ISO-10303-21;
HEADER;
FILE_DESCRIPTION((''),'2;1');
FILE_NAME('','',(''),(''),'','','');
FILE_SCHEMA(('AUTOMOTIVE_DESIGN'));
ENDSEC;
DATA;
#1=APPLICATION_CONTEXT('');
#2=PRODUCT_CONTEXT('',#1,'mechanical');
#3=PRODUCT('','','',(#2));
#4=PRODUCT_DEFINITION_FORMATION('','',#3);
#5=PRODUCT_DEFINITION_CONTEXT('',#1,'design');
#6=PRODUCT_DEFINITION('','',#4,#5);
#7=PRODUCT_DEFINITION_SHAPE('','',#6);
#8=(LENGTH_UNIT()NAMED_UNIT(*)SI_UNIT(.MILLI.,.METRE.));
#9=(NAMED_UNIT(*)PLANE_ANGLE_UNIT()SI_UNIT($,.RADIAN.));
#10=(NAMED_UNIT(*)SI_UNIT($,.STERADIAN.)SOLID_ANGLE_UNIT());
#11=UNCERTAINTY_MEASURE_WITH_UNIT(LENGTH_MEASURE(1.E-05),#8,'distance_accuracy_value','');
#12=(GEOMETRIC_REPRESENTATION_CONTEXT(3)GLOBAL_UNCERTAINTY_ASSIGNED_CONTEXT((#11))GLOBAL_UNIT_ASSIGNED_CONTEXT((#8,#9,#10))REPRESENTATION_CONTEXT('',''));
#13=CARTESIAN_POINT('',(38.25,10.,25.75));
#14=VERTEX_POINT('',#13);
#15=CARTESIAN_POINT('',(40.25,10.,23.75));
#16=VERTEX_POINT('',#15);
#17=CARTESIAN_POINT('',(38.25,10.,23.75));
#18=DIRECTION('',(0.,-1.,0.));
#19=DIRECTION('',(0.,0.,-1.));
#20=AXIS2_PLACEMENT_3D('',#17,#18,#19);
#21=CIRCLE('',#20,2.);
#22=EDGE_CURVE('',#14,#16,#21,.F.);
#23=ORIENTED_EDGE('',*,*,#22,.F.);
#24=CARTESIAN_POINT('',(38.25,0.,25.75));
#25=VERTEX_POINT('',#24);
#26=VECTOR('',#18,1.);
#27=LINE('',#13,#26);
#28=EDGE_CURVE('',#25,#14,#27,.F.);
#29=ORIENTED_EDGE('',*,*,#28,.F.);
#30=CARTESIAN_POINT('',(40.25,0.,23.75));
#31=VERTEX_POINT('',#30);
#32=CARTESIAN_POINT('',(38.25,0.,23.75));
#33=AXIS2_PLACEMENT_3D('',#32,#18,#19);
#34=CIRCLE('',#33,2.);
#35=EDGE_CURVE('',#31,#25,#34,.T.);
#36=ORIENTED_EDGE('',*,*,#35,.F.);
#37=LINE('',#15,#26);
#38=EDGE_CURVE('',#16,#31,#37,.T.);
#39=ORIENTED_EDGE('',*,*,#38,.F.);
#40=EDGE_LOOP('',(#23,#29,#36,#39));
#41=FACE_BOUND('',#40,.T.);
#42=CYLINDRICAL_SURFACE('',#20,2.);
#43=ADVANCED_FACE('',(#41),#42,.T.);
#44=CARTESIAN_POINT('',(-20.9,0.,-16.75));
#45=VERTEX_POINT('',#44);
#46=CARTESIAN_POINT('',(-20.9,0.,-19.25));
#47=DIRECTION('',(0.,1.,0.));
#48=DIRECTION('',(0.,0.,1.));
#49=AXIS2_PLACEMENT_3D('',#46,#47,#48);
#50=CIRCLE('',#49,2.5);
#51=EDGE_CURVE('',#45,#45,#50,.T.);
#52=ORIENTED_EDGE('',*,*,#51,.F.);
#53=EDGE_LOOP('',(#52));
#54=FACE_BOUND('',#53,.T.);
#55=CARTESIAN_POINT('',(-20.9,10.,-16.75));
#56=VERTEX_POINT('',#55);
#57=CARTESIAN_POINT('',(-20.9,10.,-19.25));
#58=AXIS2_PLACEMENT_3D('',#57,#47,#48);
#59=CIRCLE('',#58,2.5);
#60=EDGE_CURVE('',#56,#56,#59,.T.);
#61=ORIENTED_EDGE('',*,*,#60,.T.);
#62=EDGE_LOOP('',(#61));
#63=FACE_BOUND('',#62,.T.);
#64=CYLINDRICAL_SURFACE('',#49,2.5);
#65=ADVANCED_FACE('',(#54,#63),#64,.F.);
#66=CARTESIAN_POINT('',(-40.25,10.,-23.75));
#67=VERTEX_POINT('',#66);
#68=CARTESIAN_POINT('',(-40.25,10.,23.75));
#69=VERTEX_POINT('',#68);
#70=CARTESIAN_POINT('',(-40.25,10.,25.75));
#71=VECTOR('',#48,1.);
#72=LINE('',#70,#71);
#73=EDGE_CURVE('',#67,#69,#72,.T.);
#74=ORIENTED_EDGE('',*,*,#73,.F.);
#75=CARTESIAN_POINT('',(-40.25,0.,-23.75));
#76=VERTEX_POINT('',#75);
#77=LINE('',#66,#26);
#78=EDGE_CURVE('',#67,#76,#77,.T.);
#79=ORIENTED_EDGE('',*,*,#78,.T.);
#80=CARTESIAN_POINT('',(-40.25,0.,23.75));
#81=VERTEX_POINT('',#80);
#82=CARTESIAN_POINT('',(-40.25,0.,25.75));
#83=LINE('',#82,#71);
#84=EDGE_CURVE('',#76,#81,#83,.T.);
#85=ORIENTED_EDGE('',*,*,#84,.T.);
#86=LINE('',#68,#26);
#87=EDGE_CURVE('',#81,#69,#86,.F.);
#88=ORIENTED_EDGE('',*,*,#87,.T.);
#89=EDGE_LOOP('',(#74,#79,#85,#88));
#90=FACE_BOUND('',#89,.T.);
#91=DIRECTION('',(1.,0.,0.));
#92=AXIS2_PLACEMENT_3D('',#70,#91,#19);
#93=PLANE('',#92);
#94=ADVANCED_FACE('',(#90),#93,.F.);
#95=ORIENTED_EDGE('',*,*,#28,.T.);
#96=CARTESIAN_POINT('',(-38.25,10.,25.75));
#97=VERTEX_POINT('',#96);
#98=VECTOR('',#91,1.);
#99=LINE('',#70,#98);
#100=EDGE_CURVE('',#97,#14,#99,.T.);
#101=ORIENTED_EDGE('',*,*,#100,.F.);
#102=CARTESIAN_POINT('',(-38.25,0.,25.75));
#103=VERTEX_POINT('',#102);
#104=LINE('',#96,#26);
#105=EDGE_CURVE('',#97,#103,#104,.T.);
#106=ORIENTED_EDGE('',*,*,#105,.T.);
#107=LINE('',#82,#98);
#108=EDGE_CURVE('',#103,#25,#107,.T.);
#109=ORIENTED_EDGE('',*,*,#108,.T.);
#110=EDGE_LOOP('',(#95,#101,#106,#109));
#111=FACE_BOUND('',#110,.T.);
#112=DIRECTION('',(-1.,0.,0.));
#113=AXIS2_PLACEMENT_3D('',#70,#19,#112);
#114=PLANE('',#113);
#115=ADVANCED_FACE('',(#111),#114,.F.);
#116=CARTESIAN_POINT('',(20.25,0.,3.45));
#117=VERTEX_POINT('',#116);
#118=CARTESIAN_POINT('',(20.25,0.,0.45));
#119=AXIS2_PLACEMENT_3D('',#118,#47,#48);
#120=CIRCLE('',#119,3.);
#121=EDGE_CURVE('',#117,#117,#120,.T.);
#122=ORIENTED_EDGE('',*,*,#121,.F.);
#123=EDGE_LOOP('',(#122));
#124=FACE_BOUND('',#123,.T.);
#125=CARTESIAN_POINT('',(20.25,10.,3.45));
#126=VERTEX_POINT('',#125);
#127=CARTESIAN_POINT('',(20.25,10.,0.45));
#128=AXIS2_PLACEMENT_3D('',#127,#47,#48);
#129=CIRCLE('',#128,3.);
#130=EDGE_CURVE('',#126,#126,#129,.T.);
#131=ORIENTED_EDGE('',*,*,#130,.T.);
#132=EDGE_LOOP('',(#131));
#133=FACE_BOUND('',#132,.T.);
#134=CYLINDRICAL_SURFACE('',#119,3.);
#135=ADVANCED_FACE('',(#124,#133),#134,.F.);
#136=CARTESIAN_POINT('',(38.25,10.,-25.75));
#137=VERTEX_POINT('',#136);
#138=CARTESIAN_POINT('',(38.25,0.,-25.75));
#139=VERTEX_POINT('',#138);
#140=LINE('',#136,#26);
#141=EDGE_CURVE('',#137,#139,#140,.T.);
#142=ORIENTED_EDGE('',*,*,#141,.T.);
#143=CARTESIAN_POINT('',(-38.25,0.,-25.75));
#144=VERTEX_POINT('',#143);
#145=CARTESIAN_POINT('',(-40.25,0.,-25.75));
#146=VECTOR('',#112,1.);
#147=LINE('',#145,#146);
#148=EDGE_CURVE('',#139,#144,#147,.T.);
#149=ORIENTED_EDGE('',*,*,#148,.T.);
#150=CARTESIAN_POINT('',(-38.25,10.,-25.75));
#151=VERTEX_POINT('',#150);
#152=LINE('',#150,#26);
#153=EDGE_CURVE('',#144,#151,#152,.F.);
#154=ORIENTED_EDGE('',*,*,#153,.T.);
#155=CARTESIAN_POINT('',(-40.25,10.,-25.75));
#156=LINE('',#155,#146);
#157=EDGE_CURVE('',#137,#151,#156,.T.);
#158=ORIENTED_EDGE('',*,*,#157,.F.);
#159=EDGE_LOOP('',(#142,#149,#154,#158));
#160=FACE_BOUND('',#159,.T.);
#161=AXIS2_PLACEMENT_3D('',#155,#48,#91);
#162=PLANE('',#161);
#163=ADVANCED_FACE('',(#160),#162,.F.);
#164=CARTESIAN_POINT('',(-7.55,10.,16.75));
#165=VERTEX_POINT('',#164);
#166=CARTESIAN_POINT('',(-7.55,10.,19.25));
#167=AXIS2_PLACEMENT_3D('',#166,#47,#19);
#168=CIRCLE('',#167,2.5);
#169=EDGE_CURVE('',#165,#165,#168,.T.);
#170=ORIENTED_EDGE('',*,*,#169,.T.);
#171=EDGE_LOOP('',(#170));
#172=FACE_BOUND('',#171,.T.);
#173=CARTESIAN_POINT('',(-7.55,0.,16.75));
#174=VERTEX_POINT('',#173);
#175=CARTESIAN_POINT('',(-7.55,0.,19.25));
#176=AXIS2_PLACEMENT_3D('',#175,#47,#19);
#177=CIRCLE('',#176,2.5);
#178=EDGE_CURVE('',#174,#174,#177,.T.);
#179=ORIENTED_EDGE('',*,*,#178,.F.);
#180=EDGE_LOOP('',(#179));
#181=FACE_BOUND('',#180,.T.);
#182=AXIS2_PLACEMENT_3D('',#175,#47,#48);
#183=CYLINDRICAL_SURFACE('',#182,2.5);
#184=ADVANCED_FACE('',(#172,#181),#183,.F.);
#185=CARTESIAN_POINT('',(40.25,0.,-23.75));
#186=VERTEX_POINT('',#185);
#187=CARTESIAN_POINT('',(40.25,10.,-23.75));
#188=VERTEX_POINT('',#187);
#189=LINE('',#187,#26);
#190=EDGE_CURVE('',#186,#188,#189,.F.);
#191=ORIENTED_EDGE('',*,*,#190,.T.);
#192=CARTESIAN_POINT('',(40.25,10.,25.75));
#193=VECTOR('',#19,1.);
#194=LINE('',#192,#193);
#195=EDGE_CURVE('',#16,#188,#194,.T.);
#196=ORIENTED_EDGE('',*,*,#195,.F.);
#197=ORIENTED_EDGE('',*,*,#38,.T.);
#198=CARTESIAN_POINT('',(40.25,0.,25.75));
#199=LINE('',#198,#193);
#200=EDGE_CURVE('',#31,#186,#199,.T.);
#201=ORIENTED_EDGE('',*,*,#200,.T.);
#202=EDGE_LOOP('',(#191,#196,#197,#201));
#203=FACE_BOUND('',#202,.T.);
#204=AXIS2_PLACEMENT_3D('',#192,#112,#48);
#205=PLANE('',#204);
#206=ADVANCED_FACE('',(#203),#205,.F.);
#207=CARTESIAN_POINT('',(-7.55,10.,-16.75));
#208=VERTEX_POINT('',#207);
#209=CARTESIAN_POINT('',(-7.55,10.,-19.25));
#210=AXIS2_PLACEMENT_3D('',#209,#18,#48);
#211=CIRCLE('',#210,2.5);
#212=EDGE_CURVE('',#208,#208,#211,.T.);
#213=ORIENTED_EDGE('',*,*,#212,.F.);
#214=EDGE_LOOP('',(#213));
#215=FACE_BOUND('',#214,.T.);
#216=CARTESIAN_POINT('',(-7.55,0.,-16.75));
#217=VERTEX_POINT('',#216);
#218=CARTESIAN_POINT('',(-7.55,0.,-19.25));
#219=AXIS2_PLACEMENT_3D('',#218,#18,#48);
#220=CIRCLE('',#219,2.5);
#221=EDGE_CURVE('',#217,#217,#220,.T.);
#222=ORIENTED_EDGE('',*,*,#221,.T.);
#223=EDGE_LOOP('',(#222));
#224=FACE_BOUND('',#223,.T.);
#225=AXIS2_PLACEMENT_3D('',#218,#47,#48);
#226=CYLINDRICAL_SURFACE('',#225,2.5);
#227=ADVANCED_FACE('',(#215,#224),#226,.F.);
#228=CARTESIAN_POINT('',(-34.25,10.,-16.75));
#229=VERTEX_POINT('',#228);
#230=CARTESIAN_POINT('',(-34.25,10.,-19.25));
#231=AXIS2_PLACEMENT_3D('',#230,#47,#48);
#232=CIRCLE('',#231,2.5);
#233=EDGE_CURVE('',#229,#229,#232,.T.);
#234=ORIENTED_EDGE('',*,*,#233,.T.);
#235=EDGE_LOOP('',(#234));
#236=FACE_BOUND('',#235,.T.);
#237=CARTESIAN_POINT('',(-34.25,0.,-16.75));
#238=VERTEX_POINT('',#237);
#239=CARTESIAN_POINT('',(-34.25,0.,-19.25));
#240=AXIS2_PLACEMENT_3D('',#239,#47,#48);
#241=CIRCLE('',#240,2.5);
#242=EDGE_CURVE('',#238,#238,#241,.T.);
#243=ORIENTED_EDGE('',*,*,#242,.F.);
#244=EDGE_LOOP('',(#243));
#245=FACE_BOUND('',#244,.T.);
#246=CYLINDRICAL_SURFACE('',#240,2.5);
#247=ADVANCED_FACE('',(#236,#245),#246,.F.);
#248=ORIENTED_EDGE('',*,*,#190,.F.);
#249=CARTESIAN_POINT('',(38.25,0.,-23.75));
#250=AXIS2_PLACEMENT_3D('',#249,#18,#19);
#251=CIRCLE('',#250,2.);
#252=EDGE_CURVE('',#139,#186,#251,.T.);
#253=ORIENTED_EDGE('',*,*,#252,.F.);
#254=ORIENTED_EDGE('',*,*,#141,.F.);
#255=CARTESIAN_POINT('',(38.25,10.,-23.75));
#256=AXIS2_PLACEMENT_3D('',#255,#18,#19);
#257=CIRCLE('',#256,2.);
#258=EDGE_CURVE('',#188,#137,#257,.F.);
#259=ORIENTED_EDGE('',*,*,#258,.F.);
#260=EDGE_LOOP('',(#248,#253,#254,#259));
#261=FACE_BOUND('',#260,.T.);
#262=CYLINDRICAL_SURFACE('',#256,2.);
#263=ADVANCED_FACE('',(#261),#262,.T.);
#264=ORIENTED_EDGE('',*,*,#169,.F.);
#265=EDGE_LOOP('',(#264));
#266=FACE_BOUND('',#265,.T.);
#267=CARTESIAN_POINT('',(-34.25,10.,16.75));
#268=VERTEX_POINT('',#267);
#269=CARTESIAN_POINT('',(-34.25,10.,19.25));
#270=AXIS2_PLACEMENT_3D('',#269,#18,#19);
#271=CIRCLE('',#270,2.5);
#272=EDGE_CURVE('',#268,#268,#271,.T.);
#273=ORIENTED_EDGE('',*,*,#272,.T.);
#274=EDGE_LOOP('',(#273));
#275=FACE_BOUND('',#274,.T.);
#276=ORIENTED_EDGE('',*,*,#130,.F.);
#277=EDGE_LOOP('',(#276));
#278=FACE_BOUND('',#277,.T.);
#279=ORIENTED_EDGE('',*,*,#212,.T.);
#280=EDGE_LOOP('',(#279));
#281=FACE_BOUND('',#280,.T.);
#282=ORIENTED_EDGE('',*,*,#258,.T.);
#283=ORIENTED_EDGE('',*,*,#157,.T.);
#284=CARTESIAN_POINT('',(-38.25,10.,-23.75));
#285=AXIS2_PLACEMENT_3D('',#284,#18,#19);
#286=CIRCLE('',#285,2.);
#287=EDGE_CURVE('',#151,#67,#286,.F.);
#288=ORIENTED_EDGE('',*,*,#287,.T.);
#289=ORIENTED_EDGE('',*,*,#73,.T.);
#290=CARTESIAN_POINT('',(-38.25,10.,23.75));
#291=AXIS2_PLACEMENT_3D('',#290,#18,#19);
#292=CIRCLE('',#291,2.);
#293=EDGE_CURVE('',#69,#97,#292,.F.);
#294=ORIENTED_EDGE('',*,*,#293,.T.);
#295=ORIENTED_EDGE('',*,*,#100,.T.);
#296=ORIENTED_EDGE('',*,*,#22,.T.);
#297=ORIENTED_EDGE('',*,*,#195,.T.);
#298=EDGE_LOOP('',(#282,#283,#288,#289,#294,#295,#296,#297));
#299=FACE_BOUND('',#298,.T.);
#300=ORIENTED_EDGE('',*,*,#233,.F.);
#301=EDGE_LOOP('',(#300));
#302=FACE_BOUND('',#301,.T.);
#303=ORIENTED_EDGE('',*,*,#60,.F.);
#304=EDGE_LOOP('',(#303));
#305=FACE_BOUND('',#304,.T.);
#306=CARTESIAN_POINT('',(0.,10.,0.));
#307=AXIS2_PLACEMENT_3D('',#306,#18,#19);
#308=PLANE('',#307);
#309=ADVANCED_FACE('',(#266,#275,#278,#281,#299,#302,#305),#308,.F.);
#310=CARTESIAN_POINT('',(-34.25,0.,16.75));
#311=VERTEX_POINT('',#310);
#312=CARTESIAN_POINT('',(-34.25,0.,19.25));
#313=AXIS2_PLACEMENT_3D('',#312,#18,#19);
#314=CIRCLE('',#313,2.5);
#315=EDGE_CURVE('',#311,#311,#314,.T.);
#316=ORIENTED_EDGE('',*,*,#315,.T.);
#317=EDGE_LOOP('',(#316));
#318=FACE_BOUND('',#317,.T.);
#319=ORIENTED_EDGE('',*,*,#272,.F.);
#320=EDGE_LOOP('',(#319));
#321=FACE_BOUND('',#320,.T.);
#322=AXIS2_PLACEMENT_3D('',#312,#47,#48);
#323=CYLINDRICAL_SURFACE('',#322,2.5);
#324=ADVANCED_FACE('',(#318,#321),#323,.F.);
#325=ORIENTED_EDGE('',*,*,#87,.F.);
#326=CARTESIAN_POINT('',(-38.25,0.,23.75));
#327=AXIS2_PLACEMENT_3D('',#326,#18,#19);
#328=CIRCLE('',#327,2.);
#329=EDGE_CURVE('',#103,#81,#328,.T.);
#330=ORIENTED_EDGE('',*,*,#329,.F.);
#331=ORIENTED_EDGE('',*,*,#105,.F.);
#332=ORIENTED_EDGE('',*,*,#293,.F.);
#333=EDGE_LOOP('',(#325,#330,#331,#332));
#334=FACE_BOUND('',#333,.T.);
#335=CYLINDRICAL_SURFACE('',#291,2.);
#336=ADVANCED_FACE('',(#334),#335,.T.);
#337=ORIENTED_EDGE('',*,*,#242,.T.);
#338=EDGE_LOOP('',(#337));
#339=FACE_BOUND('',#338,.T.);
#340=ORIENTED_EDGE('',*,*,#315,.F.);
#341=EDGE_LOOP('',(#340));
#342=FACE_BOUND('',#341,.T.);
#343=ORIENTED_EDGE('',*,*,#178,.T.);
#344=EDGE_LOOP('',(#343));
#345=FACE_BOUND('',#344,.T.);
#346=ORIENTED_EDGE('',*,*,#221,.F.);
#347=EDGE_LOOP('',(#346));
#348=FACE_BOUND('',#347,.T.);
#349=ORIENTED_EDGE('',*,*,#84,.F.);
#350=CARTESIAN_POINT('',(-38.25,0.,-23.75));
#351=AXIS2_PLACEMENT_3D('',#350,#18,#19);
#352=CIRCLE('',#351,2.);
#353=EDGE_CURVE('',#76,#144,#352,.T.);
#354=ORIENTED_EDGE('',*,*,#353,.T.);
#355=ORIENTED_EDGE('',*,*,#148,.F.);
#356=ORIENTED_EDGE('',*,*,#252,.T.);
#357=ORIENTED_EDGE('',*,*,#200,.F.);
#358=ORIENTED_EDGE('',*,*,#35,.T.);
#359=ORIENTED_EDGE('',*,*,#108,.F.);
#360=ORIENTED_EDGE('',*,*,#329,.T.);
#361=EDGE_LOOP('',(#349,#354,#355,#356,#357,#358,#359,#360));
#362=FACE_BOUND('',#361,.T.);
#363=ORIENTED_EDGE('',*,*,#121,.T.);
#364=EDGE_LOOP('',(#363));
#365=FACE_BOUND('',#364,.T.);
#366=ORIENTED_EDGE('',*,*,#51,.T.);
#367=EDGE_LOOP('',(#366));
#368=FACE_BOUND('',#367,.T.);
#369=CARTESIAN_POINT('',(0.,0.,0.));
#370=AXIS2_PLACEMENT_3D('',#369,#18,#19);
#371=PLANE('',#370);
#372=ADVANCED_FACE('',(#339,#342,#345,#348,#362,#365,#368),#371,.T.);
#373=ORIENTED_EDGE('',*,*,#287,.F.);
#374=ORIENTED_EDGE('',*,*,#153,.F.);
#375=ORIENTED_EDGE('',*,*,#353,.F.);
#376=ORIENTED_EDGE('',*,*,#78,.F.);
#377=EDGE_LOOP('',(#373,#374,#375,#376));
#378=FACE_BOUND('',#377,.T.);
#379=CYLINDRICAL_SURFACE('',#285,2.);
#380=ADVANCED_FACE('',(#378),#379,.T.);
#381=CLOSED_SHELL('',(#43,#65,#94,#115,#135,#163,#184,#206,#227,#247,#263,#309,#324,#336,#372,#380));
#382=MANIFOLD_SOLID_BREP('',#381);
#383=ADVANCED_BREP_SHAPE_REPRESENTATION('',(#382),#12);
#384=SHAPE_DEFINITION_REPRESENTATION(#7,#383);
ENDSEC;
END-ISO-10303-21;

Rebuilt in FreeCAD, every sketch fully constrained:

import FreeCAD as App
import Part
import Sketcher

V = App.Vector


def edges_at(feature, points):
    """Names of the edges that pass closest to the given points."""
    edges = feature.Shape.Edges
    near = lambda p: min(range(len(edges)), key=lambda i: edges[i].distToShape(Part.Vertex(*p))[0])
    return sorted({f"Edge{near(p) + 1}" for p in points})

doc = App.newDocument("Part")
params = doc.addObject("Spreadsheet::Sheet", "Params")
for row, (alias, value) in enumerate([
    ("sketch1_width", "80.5 mm"),
    ("sketch1_height", "51.5 mm"),
    ("pad1_length", "10 mm"),
    ("sketch2_diameter", "5 mm"),
    ("sketch3_diameter", "5 mm"),
    ("sketch4_diameter", "5 mm"),
    ("sketch5_diameter", "6 mm"),
    ("fillet_radius", "2 mm"),
], start=1):
    params.set(f"A{row}", alias)
    params.set(f"B{row}", "=" + value)
    params.setAlias(f"B{row}", alias)

body = doc.addObject("PartDesign::Body", "Body")

# Sketch on XZ plane
sketch1 = body.newObject("Sketcher::SketchObject", "Sketch")
sketch1.AttachmentSupport = (doc.getObject("XZ_Plane"), [""])
sketch1.MapMode = "FlatFace"
sketch1.addGeometry([
    Part.LineSegment(V(-40, -26, 0), V(-40, 26, 0)),
    Part.LineSegment(V(-40, 26, 0), V(40, 26, 0)),
    Part.LineSegment(V(40, 26, 0), V(40, -26, 0)),
    Part.LineSegment(V(40, -26, 0), V(-40, -26, 0)),
], False)
sketch1.addConstraint([
    Sketcher.Constraint("Coincident", 0, 2, 1, 1),
    Sketcher.Constraint("Coincident", 1, 2, 2, 1),
    Sketcher.Constraint("Coincident", 2, 2, 3, 1),
    Sketcher.Constraint("Coincident", 3, 2, 0, 1),
    Sketcher.Constraint("Vertical", 0),
    Sketcher.Constraint("Horizontal", 1),
    Sketcher.Constraint("Vertical", 2),
    Sketcher.Constraint("Horizontal", 3),
    Sketcher.Constraint("Symmetric", 0, 2, 2, 2, -1, 1),
    Sketcher.Constraint("DistanceX", 1, 1, 1, 2, 80.5),
    Sketcher.Constraint("DistanceY", 0, 1, 0, 2, 51.5),
])
sketch1.setExpression("Constraints[9]", "Params.sketch1_width")
sketch1.setExpression("Constraints[10]", "Params.sketch1_height")
pad1 = body.newObject("PartDesign::Pad", "Pad")
pad1.Profile = sketch1
pad1.setExpression("Length", "Params.pad1_length")
pad1.Reversed = True

# Sketch on XZ plane
sketch2 = body.newObject("Sketcher::SketchObject", "Sketch001")
sketch2.AttachmentSupport = (doc.getObject("XZ_Plane"), [""])
sketch2.MapMode = "FlatFace"
sketch2.AttachmentOffset = App.Placement(V(0, 0, -10), App.Rotation())
sketch2.addGeometry(Part.Circle(V(-34.2, -19.2, 0), V(0, 0, 1), 2.5), False)
sketch2.addConstraint([
    Sketcher.Constraint("Diameter", 0, 5.0),
    Sketcher.Constraint("DistanceX", 0, 3, -1, 1, 34.25),
    Sketcher.Constraint("DistanceY", 0, 3, -1, 1, 19.25),
])
sketch2.setExpression("Constraints[0]", "Params.sketch2_diameter")
pocket1 = body.newObject("PartDesign::Pocket", "Pocket")
pocket1.Profile = sketch2
pocket1.Type = "ThroughAll"
pocket1.Reversed = True
doc.recompute()

datumplane = body.newObject("PartDesign::Plane", "DatumPlane")
datumplane.AttachmentSupport = (doc.getObject("YZ_Plane"), [""])
datumplane.MapMode = "FlatFace"
datumplane.AttachmentOffset = App.Placement(V(0, 0, -20.9), App.Rotation())
mirrored = body.newObject("PartDesign::Mirrored", "Mirrored")
mirrored.Originals = [pocket1]
mirrored.MirrorPlane = (datumplane, [""])
body.Tip = mirrored
doc.recompute()

mirrored2 = body.newObject("PartDesign::Mirrored", "Mirrored001")
mirrored2.Originals = [pocket1]
mirrored2.MirrorPlane = (doc.getObject("XY_Plane"), [""])
body.Tip = mirrored2

# Sketch on XZ plane
sketch3 = body.newObject("Sketcher::SketchObject", "Sketch002")
sketch3.AttachmentSupport = (doc.getObject("XZ_Plane"), [""])
sketch3.MapMode = "FlatFace"
sketch3.AttachmentOffset = App.Placement(V(0, 0, -10), App.Rotation())
sketch3.addGeometry(Part.Circle(V(-7.5, 19.2, 0), V(0, 0, 1), 2.5), False)
sketch3.addConstraint([
    Sketcher.Constraint("Diameter", 0, 5.0),
    Sketcher.Constraint("DistanceX", 0, 3, -1, 1, 7.55),
    Sketcher.Constraint("DistanceY", -1, 1, 0, 3, 19.25),
])
sketch3.setExpression("Constraints[0]", "Params.sketch3_diameter")
pocket2 = body.newObject("PartDesign::Pocket", "Pocket001")
pocket2.Profile = sketch3
pocket2.Type = "ThroughAll"
pocket2.Reversed = True

# Sketch on XZ plane
sketch4 = body.newObject("Sketcher::SketchObject", "Sketch003")
sketch4.AttachmentSupport = (doc.getObject("XZ_Plane"), [""])
sketch4.MapMode = "FlatFace"
sketch4.AttachmentOffset = App.Placement(V(0, 0, -10), App.Rotation())
sketch4.addGeometry(Part.Circle(V(-20.9, -19.2, 0), V(0, 0, 1), 2.5), False)
sketch4.addConstraint([
    Sketcher.Constraint("Diameter", 0, 5.0),
    Sketcher.Constraint("DistanceX", 0, 3, -1, 1, 20.9),
    Sketcher.Constraint("DistanceY", 0, 3, -1, 1, 19.25),
])
sketch4.setExpression("Constraints[0]", "Params.sketch4_diameter")
pocket3 = body.newObject("PartDesign::Pocket", "Pocket002")
pocket3.Profile = sketch4
pocket3.Type = "ThroughAll"
pocket3.Reversed = True

# Sketch on XZ plane
sketch5 = body.newObject("Sketcher::SketchObject", "Sketch004")
sketch5.AttachmentSupport = (doc.getObject("XZ_Plane"), [""])
sketch5.MapMode = "FlatFace"
sketch5.AttachmentOffset = App.Placement(V(0, 0, -10), App.Rotation())
sketch5.addGeometry(Part.Circle(V(20.2, 0.5, 0), V(0, 0, 1), 3), False)
sketch5.addConstraint([
    Sketcher.Constraint("Diameter", 0, 6.0),
    Sketcher.Constraint("DistanceX", -1, 1, 0, 3, 20.25),
    Sketcher.Constraint("DistanceY", -1, 1, 0, 3, 0.45),
])
sketch5.setExpression("Constraints[0]", "Params.sketch5_diameter")
pocket4 = body.newObject("PartDesign::Pocket", "Pocket003")
pocket4.Profile = sketch5
pocket4.Type = "ThroughAll"
pocket4.Reversed = True
doc.recompute()

fillet = body.newObject("PartDesign::Fillet", "Fillet")
fillet.Base = (pocket4, edges_at(pocket4, [
    (40.25, 5, 25.75),
    (-40.25, 5, 25.75),
    (-40.25, 5, -25.75),
    (40.25, 5, -25.75),
]))
fillet.setExpression("Radius", "Params.fillet_radius")

doc.recompute()
